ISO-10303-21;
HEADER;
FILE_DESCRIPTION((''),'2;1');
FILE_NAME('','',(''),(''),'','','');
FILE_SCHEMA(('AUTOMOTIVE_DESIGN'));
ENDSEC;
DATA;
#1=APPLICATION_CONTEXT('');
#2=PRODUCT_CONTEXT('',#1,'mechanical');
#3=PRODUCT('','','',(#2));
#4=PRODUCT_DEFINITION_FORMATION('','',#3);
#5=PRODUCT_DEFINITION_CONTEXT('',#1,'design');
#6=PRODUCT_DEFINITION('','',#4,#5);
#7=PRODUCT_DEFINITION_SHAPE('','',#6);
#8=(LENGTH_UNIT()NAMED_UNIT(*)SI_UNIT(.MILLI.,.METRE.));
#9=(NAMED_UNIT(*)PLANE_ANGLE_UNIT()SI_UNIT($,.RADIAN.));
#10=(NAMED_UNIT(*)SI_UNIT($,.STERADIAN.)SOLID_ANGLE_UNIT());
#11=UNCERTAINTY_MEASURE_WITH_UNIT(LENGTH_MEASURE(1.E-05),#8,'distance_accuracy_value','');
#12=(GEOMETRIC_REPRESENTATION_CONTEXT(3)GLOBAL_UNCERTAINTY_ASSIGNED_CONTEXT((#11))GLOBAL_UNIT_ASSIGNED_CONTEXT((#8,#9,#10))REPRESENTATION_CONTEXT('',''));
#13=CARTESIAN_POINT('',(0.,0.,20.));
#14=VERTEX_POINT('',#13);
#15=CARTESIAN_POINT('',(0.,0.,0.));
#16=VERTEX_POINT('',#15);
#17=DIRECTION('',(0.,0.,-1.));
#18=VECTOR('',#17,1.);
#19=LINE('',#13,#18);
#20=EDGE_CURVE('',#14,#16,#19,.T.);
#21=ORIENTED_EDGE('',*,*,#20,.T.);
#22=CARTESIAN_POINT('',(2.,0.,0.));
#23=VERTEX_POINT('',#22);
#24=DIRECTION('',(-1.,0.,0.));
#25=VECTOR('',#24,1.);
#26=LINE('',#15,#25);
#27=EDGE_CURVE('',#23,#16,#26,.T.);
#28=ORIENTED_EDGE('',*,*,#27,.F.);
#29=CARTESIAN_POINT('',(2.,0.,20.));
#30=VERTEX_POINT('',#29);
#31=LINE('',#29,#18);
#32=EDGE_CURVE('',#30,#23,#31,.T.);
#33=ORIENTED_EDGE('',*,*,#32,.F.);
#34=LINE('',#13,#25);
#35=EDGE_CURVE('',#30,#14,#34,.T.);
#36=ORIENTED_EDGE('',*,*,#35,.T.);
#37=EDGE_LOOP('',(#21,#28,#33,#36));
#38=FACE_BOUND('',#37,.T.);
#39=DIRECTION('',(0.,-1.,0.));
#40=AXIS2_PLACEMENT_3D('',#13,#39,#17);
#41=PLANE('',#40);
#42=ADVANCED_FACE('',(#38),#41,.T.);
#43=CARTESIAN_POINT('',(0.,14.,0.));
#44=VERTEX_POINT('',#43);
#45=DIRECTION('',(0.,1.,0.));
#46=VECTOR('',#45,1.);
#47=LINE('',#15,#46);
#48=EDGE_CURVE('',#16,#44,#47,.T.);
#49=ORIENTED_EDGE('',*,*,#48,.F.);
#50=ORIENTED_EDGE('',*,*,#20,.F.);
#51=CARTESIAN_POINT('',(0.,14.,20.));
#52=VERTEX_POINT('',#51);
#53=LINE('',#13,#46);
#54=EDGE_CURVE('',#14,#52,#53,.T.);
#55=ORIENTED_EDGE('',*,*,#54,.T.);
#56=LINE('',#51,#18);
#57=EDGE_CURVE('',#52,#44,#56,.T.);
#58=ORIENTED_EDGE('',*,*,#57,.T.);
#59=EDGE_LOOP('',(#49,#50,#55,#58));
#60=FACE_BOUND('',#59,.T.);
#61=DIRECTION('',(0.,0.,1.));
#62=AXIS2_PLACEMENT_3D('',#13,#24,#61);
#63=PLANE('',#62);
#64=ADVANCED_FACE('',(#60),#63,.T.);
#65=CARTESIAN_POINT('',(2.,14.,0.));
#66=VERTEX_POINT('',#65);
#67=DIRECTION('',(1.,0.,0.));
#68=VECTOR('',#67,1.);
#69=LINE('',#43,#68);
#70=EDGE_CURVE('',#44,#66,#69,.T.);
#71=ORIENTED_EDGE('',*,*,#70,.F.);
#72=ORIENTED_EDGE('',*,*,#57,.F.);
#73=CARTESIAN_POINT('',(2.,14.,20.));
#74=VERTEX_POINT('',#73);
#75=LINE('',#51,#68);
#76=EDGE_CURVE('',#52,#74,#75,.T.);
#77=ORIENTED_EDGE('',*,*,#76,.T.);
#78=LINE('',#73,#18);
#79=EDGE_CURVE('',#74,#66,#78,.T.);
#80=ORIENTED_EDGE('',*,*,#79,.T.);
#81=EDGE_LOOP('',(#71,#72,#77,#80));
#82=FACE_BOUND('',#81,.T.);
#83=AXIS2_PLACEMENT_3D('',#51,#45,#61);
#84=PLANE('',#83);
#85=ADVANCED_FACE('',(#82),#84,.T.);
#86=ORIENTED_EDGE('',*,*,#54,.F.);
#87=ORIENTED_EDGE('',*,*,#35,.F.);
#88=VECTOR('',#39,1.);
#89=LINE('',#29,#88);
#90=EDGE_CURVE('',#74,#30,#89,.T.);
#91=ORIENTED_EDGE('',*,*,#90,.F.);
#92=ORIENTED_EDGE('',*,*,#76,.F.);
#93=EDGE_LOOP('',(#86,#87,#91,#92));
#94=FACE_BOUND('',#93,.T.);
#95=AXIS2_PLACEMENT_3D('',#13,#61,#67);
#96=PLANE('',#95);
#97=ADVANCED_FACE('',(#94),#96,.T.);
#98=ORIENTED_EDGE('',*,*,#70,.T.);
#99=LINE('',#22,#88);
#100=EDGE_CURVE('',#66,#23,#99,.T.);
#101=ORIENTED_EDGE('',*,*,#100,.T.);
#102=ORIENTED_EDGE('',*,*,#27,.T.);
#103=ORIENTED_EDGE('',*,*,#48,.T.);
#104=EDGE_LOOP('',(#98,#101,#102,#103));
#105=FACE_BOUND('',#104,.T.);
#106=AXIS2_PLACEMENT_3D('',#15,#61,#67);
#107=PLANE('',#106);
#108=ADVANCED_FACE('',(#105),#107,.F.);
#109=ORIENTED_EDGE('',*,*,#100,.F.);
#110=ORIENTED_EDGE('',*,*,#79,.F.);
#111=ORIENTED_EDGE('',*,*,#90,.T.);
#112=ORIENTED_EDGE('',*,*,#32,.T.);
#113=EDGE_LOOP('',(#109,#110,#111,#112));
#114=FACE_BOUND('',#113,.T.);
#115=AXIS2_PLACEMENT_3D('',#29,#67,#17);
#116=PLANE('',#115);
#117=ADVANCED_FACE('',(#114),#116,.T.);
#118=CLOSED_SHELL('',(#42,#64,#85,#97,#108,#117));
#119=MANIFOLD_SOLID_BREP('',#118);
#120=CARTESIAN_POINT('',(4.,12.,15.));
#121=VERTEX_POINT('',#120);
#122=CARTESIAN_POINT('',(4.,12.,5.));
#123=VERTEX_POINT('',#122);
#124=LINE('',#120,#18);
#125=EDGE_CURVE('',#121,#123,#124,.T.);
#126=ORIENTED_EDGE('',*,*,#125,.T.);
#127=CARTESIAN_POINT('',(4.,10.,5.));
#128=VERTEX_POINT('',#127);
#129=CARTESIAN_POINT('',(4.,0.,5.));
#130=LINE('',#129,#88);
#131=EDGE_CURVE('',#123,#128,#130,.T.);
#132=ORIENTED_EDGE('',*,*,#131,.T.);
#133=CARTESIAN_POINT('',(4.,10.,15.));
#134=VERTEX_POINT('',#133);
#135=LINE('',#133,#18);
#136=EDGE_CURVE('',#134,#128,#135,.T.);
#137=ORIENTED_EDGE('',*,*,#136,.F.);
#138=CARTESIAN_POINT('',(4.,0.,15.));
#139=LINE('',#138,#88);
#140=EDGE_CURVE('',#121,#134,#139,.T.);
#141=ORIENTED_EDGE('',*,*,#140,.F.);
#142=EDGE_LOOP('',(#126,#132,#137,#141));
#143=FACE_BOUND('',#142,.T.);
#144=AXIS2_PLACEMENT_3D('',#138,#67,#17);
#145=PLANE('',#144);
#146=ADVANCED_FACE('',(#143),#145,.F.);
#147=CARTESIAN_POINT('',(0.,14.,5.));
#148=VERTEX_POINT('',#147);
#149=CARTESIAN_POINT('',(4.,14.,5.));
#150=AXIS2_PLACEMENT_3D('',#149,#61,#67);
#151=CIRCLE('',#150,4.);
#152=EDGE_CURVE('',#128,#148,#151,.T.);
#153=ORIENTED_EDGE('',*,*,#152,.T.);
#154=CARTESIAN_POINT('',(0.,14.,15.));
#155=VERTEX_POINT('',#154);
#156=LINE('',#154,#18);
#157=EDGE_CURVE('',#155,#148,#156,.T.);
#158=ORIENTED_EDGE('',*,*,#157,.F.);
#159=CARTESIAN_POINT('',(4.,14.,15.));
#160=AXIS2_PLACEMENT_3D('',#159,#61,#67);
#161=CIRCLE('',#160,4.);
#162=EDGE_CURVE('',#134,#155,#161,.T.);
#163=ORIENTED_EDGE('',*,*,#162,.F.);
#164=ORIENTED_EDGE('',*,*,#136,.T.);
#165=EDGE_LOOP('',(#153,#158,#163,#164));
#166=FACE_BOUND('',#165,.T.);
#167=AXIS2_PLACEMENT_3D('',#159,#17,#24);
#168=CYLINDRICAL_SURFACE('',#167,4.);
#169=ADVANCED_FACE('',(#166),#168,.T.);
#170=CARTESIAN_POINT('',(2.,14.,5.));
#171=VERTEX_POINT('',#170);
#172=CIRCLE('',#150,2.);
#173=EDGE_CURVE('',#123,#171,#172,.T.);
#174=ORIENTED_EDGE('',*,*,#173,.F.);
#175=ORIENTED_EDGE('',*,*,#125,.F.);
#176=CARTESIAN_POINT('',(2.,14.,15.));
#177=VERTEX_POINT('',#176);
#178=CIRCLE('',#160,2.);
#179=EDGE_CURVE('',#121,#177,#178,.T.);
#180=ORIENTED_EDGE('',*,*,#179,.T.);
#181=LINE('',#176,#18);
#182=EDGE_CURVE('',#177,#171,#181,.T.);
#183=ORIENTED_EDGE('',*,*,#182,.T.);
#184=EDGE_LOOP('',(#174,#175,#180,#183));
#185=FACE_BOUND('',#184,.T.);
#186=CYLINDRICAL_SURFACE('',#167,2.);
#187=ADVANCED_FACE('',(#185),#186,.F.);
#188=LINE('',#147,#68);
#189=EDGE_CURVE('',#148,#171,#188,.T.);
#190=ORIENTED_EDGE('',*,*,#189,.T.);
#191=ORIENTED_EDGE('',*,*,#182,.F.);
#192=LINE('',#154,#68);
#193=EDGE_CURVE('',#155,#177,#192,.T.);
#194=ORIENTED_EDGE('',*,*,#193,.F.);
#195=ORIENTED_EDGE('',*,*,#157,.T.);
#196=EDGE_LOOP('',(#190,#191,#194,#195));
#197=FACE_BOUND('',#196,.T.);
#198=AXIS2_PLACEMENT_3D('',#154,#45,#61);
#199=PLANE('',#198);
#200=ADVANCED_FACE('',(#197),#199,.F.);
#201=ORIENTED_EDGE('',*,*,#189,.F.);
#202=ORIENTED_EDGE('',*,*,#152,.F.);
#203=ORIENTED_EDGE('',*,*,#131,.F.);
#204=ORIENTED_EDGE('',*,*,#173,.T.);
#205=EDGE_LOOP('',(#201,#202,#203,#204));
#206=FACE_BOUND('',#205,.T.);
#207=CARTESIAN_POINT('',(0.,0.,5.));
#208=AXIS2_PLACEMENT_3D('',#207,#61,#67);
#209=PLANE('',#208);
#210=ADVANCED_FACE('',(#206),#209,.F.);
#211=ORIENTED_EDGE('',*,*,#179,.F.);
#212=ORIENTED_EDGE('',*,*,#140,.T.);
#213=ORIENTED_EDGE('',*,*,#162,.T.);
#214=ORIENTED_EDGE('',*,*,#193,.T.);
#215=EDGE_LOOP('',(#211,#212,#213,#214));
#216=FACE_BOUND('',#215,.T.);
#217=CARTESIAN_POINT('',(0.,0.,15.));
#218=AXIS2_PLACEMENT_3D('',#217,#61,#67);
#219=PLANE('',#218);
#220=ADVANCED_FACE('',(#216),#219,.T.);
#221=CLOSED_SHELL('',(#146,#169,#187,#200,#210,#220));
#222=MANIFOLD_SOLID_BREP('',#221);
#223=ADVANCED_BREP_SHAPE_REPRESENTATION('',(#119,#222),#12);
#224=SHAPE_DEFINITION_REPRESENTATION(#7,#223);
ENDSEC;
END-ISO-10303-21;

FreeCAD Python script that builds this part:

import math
import FreeCAD as App
import Part
import Sketcher

doc = App.newDocument("Part")
body = doc.addObject("PartDesign::Body", "Body")

# Sketch on XY plane
sketch1 = body.newObject("Sketcher::SketchObject", "Sketch")
sketch1.AttachmentSupport = (doc.getObject("XY_Plane"), [""])
sketch1.MapMode = "FlatFace"
sketch1.addGeometry(Part.LineSegment(App.Vector(0, 14, 0), App.Vector(0, 0, 0)), False)
sketch1.addGeometry(Part.LineSegment(App.Vector(0, 0, 0), App.Vector(2, 0, 0)), False)
sketch1.addGeometry(Part.LineSegment(App.Vector(2, 0, 0), App.Vector(2, 14, 0)), False)
sketch1.addGeometry(Part.LineSegment(App.Vector(2, 14, 0), App.Vector(0, 14, 0)), False)
sketch1.addConstraint(Sketcher.Constraint("Coincident", 0, 2, 1, 1))
sketch1.addConstraint(Sketcher.Constraint("Coincident", 1, 2, 2, 1))
sketch1.addConstraint(Sketcher.Constraint("Coincident", 2, 2, 3, 1))
sketch1.addConstraint(Sketcher.Constraint("Coincident", 3, 2, 0, 1))
sketch1.addConstraint(Sketcher.Constraint("Vertical", 0))
sketch1.addConstraint(Sketcher.Constraint("Horizontal", 1))
sketch1.addConstraint(Sketcher.Constraint("Vertical", 2))
sketch1.addConstraint(Sketcher.Constraint("Horizontal", 3))
sketch1.addConstraint(Sketcher.Constraint("Coincident", 0, 2, -1, 1))
sketch1.addConstraint(Sketcher.Constraint("DistanceX", 1, 1, 1, 2, 2.0))
sketch1.addConstraint(Sketcher.Constraint("DistanceY", 0, 2, 0, 1, 14.0))
pad1 = body.newObject("PartDesign::Pad", "Pad")
pad1.Profile = sketch1
pad1.Length = 20
body2 = doc.addObject("PartDesign::Body", "Body001")

# Sketch on XY plane
sketch2 = body2.newObject("Sketcher::SketchObject", "Sketch001")
sketch2.AttachmentSupport = (doc.getObject("XY_Plane001"), [""])
sketch2.MapMode = "FlatFace"
sketch2.AttachmentOffset = App.Placement(App.Vector(0, 0, 5), App.Rotation())
sketch2.addGeometry(Part.ArcOfCircle(Part.Circle(App.Vector(4, 14, 0), App.Vector(0, 0, 1), 4), math.radians(-90), math.radians(180)), False)
sketch2.addGeometry(Part.LineSegment(App.Vector(0, 14, 0), App.Vector(2, 14, 0)), False)
sketch2.addGeometry(Part.ArcOfCircle(Part.Circle(App.Vector(4, 14, 0), App.Vector(0, 0, 1), 2), math.radians(0), math.radians(180)), False)
sketch2.addGeometry(Part.ArcOfCircle(Part.Circle(App.Vector(4, 14, 0), App.Vector(0, 0, 1), 2), math.radians(-90), math.radians(0)), False)
sketch2.addGeometry(Part.LineSegment(App.Vector(4, 12, 0), App.Vector(4, 10, 0)), False)
sketch2.addConstraint(Sketcher.Constraint("Coincident", 0, 2, 1, 1))
sketch2.addConstraint(Sketcher.Constraint("Coincident", 1, 2, 2, 2))
sketch2.addConstraint(Sketcher.Constraint("Tangent", 2, 1, 3, 2))
sketch2.addConstraint(Sketcher.Constraint("Coincident", 3, 1, 4, 1))
sketch2.addConstraint(Sketcher.Constraint("Coincident", 4, 2, 0, 1))
sketch2.addConstraint(Sketcher.Constraint("Horizontal", 1))
sketch2.addConstraint(Sketcher.Constraint("Vertical", 4))
sketch2.addConstraint(Sketcher.Constraint("Coincident", 2, 3, 0, 3))
sketch2.addConstraint(Sketcher.Constraint("Equal", 2, 3))
sketch2.addConstraint(Sketcher.Constraint("PointOnObject", 0, 2, -2))
sketch2.addConstraint(Sketcher.Constraint("Horizontal", 3, 3, 0, 2))
sketch2.addConstraint(Sketcher.Constraint("Horizontal", 1, 2, 2, 1))
sketch2.addConstraint(Sketcher.Constraint("Vertical", 2, 3, 3, 1))
sketch2.addConstraint(Sketcher.Constraint("Radius", 0, 4.0))
sketch2.addConstraint(Sketcher.Constraint("Radius", 2, 2.0))
sketch2.addConstraint(Sketcher.Constraint("DistanceY", -1, 1, 0, 3, 14.0))
pad2 = body2.newObject("PartDesign::Pad", "Pad001")
pad2.Profile = sketch2
pad2.Length = 10

doc.recompute()
